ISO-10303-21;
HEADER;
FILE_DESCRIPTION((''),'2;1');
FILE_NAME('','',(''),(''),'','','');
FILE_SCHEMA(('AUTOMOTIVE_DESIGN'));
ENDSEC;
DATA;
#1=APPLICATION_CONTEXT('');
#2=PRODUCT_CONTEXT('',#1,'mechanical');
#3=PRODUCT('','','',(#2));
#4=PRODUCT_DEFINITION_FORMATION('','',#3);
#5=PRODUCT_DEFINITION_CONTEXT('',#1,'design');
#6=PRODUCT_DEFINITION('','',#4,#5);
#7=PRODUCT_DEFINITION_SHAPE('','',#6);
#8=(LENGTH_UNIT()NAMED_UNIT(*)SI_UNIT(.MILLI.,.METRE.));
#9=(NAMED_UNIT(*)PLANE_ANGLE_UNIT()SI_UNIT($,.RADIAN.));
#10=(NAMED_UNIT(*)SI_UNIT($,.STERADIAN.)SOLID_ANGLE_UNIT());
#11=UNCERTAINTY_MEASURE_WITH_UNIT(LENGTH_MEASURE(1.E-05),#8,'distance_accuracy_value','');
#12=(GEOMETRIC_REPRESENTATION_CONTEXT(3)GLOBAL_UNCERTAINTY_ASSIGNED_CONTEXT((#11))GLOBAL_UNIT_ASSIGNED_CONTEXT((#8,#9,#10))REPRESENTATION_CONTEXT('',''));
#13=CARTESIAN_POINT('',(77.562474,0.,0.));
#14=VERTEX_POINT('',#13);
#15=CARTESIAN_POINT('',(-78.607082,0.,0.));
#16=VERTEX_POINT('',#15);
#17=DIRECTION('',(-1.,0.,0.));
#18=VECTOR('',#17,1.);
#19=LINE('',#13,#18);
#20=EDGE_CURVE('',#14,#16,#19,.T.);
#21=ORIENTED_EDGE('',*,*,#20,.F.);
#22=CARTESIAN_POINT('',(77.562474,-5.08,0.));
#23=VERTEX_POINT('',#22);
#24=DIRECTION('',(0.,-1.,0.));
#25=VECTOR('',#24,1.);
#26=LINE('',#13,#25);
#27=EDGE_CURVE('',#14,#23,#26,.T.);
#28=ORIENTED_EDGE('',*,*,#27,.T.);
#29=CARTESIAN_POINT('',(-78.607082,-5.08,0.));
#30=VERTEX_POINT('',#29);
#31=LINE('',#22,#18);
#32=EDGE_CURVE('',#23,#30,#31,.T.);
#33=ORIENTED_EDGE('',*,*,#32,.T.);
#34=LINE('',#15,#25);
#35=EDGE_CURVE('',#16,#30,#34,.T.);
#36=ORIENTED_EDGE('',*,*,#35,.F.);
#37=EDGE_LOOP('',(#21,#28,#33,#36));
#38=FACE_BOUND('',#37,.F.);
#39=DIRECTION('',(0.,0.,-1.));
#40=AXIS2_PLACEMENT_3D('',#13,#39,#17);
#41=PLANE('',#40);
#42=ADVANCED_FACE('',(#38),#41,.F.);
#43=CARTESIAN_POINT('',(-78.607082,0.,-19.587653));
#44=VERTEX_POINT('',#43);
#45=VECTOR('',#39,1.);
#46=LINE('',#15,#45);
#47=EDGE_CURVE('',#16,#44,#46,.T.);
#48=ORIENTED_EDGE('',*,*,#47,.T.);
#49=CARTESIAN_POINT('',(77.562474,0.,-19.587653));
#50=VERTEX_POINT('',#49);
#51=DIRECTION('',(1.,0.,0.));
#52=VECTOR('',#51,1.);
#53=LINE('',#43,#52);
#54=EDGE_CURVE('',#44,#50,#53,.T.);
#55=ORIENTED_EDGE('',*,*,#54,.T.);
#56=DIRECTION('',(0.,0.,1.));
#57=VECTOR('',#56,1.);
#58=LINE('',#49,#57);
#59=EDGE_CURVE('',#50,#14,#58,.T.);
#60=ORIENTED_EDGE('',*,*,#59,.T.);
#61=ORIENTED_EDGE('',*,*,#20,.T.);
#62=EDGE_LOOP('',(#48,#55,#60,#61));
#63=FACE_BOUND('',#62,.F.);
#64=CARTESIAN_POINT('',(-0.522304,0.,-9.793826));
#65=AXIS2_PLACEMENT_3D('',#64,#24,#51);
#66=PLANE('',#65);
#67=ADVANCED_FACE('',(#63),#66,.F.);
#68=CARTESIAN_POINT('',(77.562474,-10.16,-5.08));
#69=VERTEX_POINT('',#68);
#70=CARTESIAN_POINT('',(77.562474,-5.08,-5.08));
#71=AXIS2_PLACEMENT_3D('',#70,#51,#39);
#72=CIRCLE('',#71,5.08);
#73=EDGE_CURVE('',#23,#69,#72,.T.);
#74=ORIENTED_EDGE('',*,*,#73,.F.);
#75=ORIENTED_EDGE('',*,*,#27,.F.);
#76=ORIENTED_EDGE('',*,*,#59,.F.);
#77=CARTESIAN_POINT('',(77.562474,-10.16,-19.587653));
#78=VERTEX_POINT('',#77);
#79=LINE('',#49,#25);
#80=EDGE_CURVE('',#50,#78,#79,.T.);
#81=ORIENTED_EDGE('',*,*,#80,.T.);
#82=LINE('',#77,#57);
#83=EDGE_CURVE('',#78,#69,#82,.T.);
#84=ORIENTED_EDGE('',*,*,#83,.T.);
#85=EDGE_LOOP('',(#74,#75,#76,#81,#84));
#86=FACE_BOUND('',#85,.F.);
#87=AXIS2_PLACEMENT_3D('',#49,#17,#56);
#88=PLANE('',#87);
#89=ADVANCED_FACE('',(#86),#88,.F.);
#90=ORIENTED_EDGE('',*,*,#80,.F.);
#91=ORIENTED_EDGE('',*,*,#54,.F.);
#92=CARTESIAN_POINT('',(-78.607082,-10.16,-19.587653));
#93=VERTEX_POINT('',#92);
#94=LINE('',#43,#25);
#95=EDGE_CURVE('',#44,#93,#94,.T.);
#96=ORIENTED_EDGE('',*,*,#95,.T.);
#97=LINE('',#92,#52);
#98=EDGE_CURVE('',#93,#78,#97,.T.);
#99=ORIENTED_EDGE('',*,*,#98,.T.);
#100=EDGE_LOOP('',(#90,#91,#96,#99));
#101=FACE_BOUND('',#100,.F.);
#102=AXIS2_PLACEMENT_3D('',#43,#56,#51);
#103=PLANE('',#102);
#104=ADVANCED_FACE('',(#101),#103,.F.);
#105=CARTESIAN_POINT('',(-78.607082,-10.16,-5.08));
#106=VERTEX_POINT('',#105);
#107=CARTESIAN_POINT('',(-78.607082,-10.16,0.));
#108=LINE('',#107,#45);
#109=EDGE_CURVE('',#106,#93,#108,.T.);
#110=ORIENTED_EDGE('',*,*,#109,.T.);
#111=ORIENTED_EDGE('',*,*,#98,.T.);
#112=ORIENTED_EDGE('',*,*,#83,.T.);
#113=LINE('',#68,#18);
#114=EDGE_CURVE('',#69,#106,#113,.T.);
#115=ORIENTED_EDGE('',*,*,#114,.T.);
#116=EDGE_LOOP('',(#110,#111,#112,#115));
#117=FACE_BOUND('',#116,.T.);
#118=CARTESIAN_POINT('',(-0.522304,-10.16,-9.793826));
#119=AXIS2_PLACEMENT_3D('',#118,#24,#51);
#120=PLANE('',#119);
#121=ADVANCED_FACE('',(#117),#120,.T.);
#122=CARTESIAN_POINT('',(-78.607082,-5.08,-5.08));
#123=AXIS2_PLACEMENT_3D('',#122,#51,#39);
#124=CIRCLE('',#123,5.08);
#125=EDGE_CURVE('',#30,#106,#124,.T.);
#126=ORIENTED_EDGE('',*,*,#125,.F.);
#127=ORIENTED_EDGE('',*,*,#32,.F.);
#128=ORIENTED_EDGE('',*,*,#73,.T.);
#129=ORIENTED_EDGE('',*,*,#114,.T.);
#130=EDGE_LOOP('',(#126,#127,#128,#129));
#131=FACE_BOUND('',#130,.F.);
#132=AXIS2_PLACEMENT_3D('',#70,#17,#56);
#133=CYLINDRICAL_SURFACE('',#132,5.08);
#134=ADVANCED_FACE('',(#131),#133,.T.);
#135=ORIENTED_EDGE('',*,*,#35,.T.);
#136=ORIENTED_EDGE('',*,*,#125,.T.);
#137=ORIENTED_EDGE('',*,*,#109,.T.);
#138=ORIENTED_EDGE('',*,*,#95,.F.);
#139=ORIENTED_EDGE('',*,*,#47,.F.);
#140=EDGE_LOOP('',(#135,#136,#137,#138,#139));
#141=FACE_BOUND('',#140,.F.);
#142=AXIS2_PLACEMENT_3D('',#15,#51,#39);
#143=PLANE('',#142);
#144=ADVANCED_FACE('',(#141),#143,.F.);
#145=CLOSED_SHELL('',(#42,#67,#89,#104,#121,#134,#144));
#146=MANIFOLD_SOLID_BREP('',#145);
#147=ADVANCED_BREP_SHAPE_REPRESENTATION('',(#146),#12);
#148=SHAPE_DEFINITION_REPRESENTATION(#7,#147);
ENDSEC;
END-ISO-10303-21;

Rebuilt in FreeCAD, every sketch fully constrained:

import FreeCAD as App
import Part
import Sketcher
from FreeCAD import Vector


def edges_at(feature, points):
    """Names of the edges that pass closest to the given points."""
    edges = feature.Shape.Edges
    near = lambda p: min(range(len(edges)), key=lambda i: edges[i].distToShape(Part.Vertex(*p))[0])
    return sorted({f"Edge{near(p) + 1}" for p in points})

doc = App.newDocument("Part")
params = doc.addObject("Spreadsheet::Sheet", "Params")
for row, (alias, value) in enumerate([
    ("pad1_length", "0.4 in"),
    ("fillet_radius", "0.2 in"),
], start=1):
    params.set(f"A{row}", alias)
    params.set(f"B{row}", "=" + value)
    params.setAlias(f"B{row}", alias)

body = doc.addObject("PartDesign::Body", "Body")

# Sketch on XZ plane
sketch1 = body.newObject("Sketcher::SketchObject", "Sketch")
sketch1.AttachmentSupport = (doc.getObject("XZ_Plane"), [""])
sketch1.MapMode = "FlatFace"
sketch1.addGeometry([
    Part.LineSegment(Vector(78, 0, 0), Vector(-79, 0, 0)),
    Part.LineSegment(Vector(-79, 0, 0), Vector(-79, -20, 0)),
    Part.LineSegment(Vector(-79, -20, 0), Vector(78, -20, 0)),
    Part.LineSegment(Vector(78, -20, 0), Vector(78, 0, 0)),
], False)
sketch1.addConstraint([
    Sketcher.Constraint("Coincident", 0, 2, 1, 1),
    Sketcher.Constraint("Coincident", 1, 2, 2, 1),
    Sketcher.Constraint("Coincident", 2, 2, 3, 1),
    Sketcher.Constraint("Coincident", 3, 2, 0, 1),
    Sketcher.Constraint("Horizontal", 0),
    Sketcher.Constraint("Vertical", 1),
    Sketcher.Constraint("Horizontal", 2),
    Sketcher.Constraint("Vertical", 3),
    Sketcher.Constraint("PointOnObject", 0, 2, -1),
    Sketcher.Constraint("DistanceX", 0, 2, 0, 1, 156.169556),
    Sketcher.Constraint("DistanceY", 1, 2, 1, 1, 19.587653),
    Sketcher.Constraint("DistanceX", 0, 2, -1, 1, 78.607082),
])
pad1 = body.newObject("PartDesign::Pad", "Pad")
pad1.Profile = sketch1
pad1.setExpression("Length", "Params.pad1_length")
doc.recompute()

fillet = body.newObject("PartDesign::Fillet", "Fillet")
fillet.Base = (pad1, edges_at(pad1, [(-0.522, -10.16, 0)]))
fillet.setExpression("Radius", "Params.fillet_radius")

doc.recompute()
